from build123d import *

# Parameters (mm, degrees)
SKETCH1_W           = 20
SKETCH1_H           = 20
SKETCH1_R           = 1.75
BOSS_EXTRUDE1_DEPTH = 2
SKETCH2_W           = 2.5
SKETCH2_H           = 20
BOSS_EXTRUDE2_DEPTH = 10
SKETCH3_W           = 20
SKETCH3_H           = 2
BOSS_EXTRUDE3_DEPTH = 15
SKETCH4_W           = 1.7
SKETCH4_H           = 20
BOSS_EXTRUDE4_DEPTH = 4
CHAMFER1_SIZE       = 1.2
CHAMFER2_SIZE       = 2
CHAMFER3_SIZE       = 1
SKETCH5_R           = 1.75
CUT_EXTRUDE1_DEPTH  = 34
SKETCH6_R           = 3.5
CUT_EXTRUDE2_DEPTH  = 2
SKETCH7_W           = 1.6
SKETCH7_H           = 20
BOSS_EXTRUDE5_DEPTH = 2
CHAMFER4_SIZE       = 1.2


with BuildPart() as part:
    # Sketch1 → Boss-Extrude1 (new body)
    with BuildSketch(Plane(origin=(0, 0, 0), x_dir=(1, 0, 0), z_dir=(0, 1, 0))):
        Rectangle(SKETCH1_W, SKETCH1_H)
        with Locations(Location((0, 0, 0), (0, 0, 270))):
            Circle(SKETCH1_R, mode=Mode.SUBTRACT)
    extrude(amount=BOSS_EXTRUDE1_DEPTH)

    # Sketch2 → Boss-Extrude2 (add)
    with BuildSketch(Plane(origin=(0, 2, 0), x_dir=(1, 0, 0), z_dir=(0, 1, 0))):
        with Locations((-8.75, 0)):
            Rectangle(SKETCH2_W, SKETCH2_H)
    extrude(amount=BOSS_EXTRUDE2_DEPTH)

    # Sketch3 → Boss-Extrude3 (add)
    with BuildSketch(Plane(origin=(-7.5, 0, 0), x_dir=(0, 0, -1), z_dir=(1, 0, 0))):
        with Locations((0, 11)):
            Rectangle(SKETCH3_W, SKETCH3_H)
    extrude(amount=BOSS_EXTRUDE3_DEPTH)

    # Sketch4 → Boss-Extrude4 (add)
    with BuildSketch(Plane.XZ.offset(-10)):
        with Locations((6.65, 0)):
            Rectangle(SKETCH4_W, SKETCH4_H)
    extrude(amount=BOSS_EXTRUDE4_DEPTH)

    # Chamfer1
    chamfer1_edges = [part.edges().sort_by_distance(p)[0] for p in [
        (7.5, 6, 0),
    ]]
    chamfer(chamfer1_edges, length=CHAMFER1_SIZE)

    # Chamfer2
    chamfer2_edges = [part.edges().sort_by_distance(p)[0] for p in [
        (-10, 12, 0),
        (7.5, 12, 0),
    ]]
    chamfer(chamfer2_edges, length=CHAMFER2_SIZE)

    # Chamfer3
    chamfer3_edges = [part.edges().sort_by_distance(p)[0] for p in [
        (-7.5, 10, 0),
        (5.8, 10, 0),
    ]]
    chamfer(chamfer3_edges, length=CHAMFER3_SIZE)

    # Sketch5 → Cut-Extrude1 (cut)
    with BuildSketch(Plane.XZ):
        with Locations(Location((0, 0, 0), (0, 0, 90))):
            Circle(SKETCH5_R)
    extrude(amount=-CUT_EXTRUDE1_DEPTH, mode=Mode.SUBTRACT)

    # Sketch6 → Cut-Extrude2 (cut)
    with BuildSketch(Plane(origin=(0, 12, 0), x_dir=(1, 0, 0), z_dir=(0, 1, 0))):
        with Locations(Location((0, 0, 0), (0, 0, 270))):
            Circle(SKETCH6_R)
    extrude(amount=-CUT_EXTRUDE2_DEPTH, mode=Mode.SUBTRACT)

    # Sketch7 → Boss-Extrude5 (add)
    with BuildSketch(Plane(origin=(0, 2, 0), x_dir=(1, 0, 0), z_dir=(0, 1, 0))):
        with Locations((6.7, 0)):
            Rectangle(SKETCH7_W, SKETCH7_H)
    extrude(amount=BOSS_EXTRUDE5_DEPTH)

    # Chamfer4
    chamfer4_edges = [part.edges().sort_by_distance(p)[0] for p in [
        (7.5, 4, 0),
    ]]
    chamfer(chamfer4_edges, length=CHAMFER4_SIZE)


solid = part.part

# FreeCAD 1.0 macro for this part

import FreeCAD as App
import Part
import Sketcher
from FreeCAD import Vector


def edges_at(feature, points):
    """Names of the edges that pass closest to the given points."""
    edges = feature.Shape.Edges
    near = lambda p: min(range(len(edges)), key=lambda i: edges[i].distToShape(Part.Vertex(*p))[0])
    return sorted({f"Edge{near(p) + 1}" for p in points})


def add_polygon(sketch, points):
    """Adds a closed chain of lines whose ends are joined by coincident constraints."""
    first, n = sketch.GeometryCount, len(points)
    for a, b in zip(points, points[1:] + points[:1]):
        sketch.addGeometry(Part.LineSegment(App.Vector(*a, 0), App.Vector(*b, 0)), False)
    for i in range(n):
        sketch.addConstraint(Sketcher.Constraint("Coincident", first + i, 2, first + (i + 1) % n, 1))

doc = App.newDocument("Part")
params = doc.addObject("Spreadsheet::Sheet", "Params")
for row, (alias, value) in enumerate([
    ("sketch1_diameter", "3.5 mm"),
    ("sketch1_width", "20 mm"),
    ("pad1_length", "2 mm"),
    ("sketch2_height", "20 mm"),
    ("sketch2_width", "2.5 mm"),
    ("pad2_length", "10 mm"),
    ("sketch3_width", "2 mm"),
    ("sketch3_height", "20 mm"),
    ("pad3_length", "15 mm"),
    ("sketch4_height", "20 mm"),
    ("sketch4_width", "1.7 mm"),
    ("pad4_length", "4 mm"),
    ("chamfer_size", "1.2 mm"),
    ("chamfer2_size", "2 mm"),
    ("chamfer3_size", "1 mm"),
    ("sketch5_diameter", "3.5 mm"),
    ("pocket1_length", "34 mm"),
    ("sketch6_diameter", "7 mm"),
    ("pocket2_length", "2 mm"),
    ("sketch7_height", "20 mm"),
    ("sketch7_width", "1.6 mm"),
    ("pad5_length", "2 mm"),
    ("chamfer4_size", "1.2 mm"),
], start=1):
    params.set(f"A{row}", alias)
    params.set(f"B{row}", "=" + value)
    params.setAlias(f"B{row}", alias)

body = doc.addObject("PartDesign::Body", "Body")

# Sketch on XZ plane
sketch1 = doc.addObject("Sketcher::SketchObject", "Sketch")
body.addObject(sketch1)
sketch1.AttachmentSupport = (doc.XZ_Plane, [""])
sketch1.MapMode = "FlatFace"
add_polygon(sketch1, [(-10, -10), (-10, 10), (10, 10), (10, -10)])  # lines 0-3
sketch1.addGeometry(Part.Circle(Vector(0, 0, 0), Vector(0, 0, 1), 1.75), False)  # 4
sketch1.addConstraint(Sketcher.Constraint("Vertical", 0))
sketch1.addConstraint(Sketcher.Constraint("Horizontal", 1))
sketch1.addConstraint(Sketcher.Constraint("Vertical", 2))
sketch1.addConstraint(Sketcher.Constraint("Horizontal", 3))
sketch1.addConstraint(Sketcher.Constraint("Coincident", 4, 3, -1, 1))
sketch1.addConstraint(Sketcher.Constraint("Symmetric", 0, 2, 2, 2, -1, 1))
sketch1.addConstraint(Sketcher.Constraint("Equal", 3, 0))
sketch1.addConstraint(Sketcher.Constraint("Diameter", 4, 3.5))
sketch1.addConstraint(Sketcher.Constraint("DistanceX", 1, 1, 1, 2, 20.0))
sketch1.setExpression("Constraints[11]", "Params.sketch1_diameter")
sketch1.setExpression("Constraints[12]", "Params.sketch1_width")
pad1 = doc.addObject("PartDesign::Pad", "Pad")
body.addObject(pad1)
pad1.Profile = sketch1
pad1.setExpression("Length", "Params.pad1_length")
pad1.Reversed = True

# Sketch on XZ plane
sketch2 = doc.addObject("Sketcher::SketchObject", "Sketch001")
body.addObject(sketch2)
sketch2.AttachmentSupport = (doc.XZ_Plane, [""])
sketch2.MapMode = "FlatFace"
sketch2.AttachmentOffset = App.Placement(Vector(0, 0, -2), App.Rotation())
add_polygon(sketch2, [(-10, -10), (-10, 10), (-7.5, 10), (-7.5, -10)])  # lines 0-3
sketch2.addConstraint(Sketcher.Constraint("Vertical", 0))
sketch2.addConstraint(Sketcher.Constraint("Horizontal", 1))
sketch2.addConstraint(Sketcher.Constraint("Vertical", 2))
sketch2.addConstraint(Sketcher.Constraint("Horizontal", 3))
sketch2.addConstraint(Sketcher.Constraint("DistanceY", 0, 1, 0, 2, 20.0))
sketch2.addConstraint(Sketcher.Constraint("DistanceX", 1, 1, 1, 2, 2.5))
sketch2.addConstraint(Sketcher.Constraint("DistanceX", 0, 2, -1, 1, 10.0))
sketch2.addConstraint(Sketcher.Constraint("DistanceY", -1, 1, 0, 2, 10.0))
sketch2.setExpression("Constraints[8]", "Params.sketch2_height")
sketch2.setExpression("Constraints[9]", "Params.sketch2_width")
pad2 = doc.addObject("PartDesign::Pad", "Pad001")
body.addObject(pad2)
pad2.Profile = sketch2
pad2.setExpression("Length", "Params.pad2_length")
pad2.Reversed = True

# Sketch on YZ plane
sketch3 = doc.addObject("Sketcher::SketchObject", "Sketch002")
body.addObject(sketch3)
sketch3.AttachmentSupport = (doc.YZ_Plane, [""])
sketch3.MapMode = "FlatFace"
sketch3.AttachmentOffset = App.Placement(Vector(0, 0, -7.5), App.Rotation())
add_polygon(sketch3, [(12, 10), (10, 10), (10, -10), (12, -10)])  # lines 0-3
sketch3.addConstraint(Sketcher.Constraint("Horizontal", 0))
sketch3.addConstraint(Sketcher.Constraint("Vertical", 1))
sketch3.addConstraint(Sketcher.Constraint("Horizontal", 2))
sketch3.addConstraint(Sketcher.Constraint("Vertical", 3))
sketch3.addConstraint(Sketcher.Constraint("DistanceX", 0, 2, 0, 1, 2.0))
sketch3.addConstraint(Sketcher.Constraint("DistanceY", 1, 2, 1, 1, 20.0))
sketch3.addConstraint(Sketcher.Constraint("DistanceX", -1, 1, 0, 2, 10.0))
sketch3.addConstraint(Sketcher.Constraint("DistanceY", -1, 1, 0, 2, 10.0))
sketch3.setExpression("Constraints[8]", "Params.sketch3_width")
sketch3.setExpression("Constraints[9]", "Params.sketch3_height")
pad3 = doc.addObject("PartDesign::Pad", "Pad002")
body.addObject(pad3)
pad3.Profile = sketch3
pad3.setExpression("Length", "Params.pad3_length")

# Sketch on XZ plane
sketch4 = doc.addObject("Sketcher::SketchObject", "Sketch003")
body.addObject(sketch4)
sketch4.AttachmentSupport = (doc.XZ_Plane, [""])
sketch4.MapMode = "FlatFace"
sketch4.AttachmentOffset = App.Placement(Vector(0, 0, -10), App.Rotation())
add_polygon(sketch4, [(5.8, 10), (5.8, -10), (7.5, -10), (7.5, 10)])  # lines 0-3
sketch4.addConstraint(Sketcher.Constraint("Vertical", 0))
sketch4.addConstraint(Sketcher.Constraint("Horizontal", 1))
sketch4.addConstraint(Sketcher.Constraint("Vertical", 2))
sketch4.addConstraint(Sketcher.Constraint("Horizontal", 3))
sketch4.addConstraint(Sketcher.Constraint("DistanceY", 0, 2, 0, 1, 20.0))
sketch4.addConstraint(Sketcher.Constraint("DistanceX", 1, 1, 1, 2, 1.7))
sketch4.addConstraint(Sketcher.Constraint("DistanceY", 0, 2, -1, 1, 10.0))
sketch4.addConstraint(Sketcher.Constraint("DistanceX", -1, 1, 0, 2, 5.8))
sketch4.setExpression("Constraints[8]", "Params.sketch4_height")
sketch4.setExpression("Constraints[9]", "Params.sketch4_width")
pad4 = doc.addObject("PartDesign::Pad", "Pad003")
body.addObject(pad4)
pad4.Profile = sketch4
pad4.setExpression("Length", "Params.pad4_length")
doc.recompute()

chamfer = doc.addObject("PartDesign::Chamfer", "Chamfer")
body.addObject(chamfer)
chamfer.Base = (pad4, edges_at(pad4, [(7.5, 6, 0)]))
chamfer.setExpression("Size", "Params.chamfer_size")
doc.recompute()

chamfer2 = doc.addObject("PartDesign::Chamfer", "Chamfer001")
body.addObject(chamfer2)
chamfer2.Base = (chamfer, edges_at(chamfer, [(-10, 12, 0), (7.5, 12, 0)]))
chamfer2.setExpression("Size", "Params.chamfer2_size")
doc.recompute()

chamfer3 = doc.addObject("PartDesign::Chamfer", "Chamfer002")
body.addObject(chamfer3)
chamfer3.Base = (chamfer2, edges_at(chamfer2, [(-7.5, 10, 0), (5.8, 10, 0)]))
chamfer3.setExpression("Size", "Params.chamfer3_size")

# Sketch on XZ plane
sketch5 = doc.addObject("Sketcher::SketchObject", "Sketch004")
body.addObject(sketch5)
sketch5.AttachmentSupport = (doc.XZ_Plane, [""])
sketch5.MapMode = "FlatFace"
sketch5.addGeometry(Part.Circle(Vector(0, 0, 0), Vector(0, 0, 1), 1.75), False)
sketch5.addConstraint(Sketcher.Constraint("Coincident", 0, 3, -1, 1))
sketch5.addConstraint(Sketcher.Constraint("Diameter", 0, 3.5))
sketch5.setExpression("Constraints[1]", "Params.sketch5_diameter")
pocket1 = doc.addObject("PartDesign::Pocket", "Pocket")
body.addObject(pocket1)
pocket1.Profile = sketch5
pocket1.setExpression("Length", "Params.pocket1_length")

# Sketch on XZ plane
sketch6 = doc.addObject("Sketcher::SketchObject", "Sketch005")
body.addObject(sketch6)
sketch6.AttachmentSupport = (doc.XZ_Plane, [""])
sketch6.MapMode = "FlatFace"
sketch6.AttachmentOffset = App.Placement(Vector(0, 0, -12), App.Rotation())
sketch6.addGeometry(Part.Circle(Vector(0, 0, 0), Vector(0, 0, 1), 3.5), False)
sketch6.addConstraint(Sketcher.Constraint("Coincident", 0, 3, -1, 1))
sketch6.addConstraint(Sketcher.Constraint("Diameter", 0, 7.0))
sketch6.setExpression("Constraints[1]", "Params.sketch6_diameter")
pocket2 = doc.addObject("PartDesign::Pocket", "Pocket001")
body.addObject(pocket2)
pocket2.Profile = sketch6
pocket2.setExpression("Length", "Params.pocket2_length")
pocket2.Reversed = True

# Sketch on XZ plane
sketch7 = doc.addObject("Sketcher::SketchObject", "Sketch006")
body.addObject(sketch7)
sketch7.AttachmentSupport = (doc.XZ_Plane, [""])
sketch7.MapMode = "FlatFace"
sketch7.AttachmentOffset = App.Placement(Vector(0, 0, -2), App.Rotation())
add_polygon(sketch7, [(5.9, -10), (5.9, 10), (7.5, 10), (7.5, -10)])  # lines 0-3
sketch7.addConstraint(Sketcher.Constraint("Vertical", 0))
sketch7.addConstraint(Sketcher.Constraint("Horizontal", 1))
sketch7.addConstraint(Sketcher.Constraint("Vertical", 2))
sketch7.addConstraint(Sketcher.Constraint("Horizontal", 3))
sketch7.addConstraint(Sketcher.Constraint("DistanceY", 0, 1, 0, 2, 20.0))
sketch7.addConstraint(Sketcher.Constraint("DistanceX", 1, 1, 1, 2, 1.6))
sketch7.addConstraint(Sketcher.Constraint("DistanceY", -1, 1, 0, 2, 10.0))
sketch7.addConstraint(Sketcher.Constraint("DistanceX", -1, 1, 0, 2, 5.9))
sketch7.setExpression("Constraints[8]", "Params.sketch7_height")
sketch7.setExpression("Constraints[9]", "Params.sketch7_width")
pad5 = doc.addObject("PartDesign::Pad", "Pad004")
body.addObject(pad5)
pad5.Profile = sketch7
pad5.setExpression("Length", "Params.pad5_length")
pad5.Reversed = True
doc.recompute()

chamfer4 = doc.addObject("PartDesign::Chamfer", "Chamfer003")
body.addObject(chamfer4)
chamfer4.Base = (pad5, edges_at(pad5, [(7.5, 4, 0)]))
chamfer4.setExpression("Size", "Params.chamfer4_size")

doc.recompute()
